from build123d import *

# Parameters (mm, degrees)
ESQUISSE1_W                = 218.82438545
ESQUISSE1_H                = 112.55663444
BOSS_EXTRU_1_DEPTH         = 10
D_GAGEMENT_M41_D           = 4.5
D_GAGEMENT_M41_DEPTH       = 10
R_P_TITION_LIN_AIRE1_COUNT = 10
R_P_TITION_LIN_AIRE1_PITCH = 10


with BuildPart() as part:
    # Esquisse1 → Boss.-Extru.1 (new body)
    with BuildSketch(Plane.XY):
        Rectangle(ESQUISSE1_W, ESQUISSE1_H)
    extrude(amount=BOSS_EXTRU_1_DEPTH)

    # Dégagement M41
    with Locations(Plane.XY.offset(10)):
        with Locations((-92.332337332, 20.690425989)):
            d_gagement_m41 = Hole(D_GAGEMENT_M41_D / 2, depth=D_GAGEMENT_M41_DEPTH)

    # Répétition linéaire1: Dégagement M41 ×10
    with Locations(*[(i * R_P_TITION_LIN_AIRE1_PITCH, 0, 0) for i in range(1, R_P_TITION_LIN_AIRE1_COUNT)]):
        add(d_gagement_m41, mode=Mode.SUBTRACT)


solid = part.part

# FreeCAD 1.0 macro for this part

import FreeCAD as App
import Part
import Sketcher
from FreeCAD import Vector


def add_polygon(sketch, points):
    """Adds a closed chain of lines whose ends are joined by coincident constraints."""
    first, n = sketch.GeometryCount, len(points)
    for a, b in zip(points, points[1:] + points[:1]):
        sketch.addGeometry(Part.LineSegment(App.Vector(*a, 0), App.Vector(*b, 0)), False)
    for i in range(n):
        sketch.addConstraint(Sketcher.Constraint("Coincident", first + i, 2, first + (i + 1) % n, 1))

doc = App.newDocument("Part")
body = doc.addObject("PartDesign::Body", "Body")

sketch1 = doc.addObject("Sketcher::SketchObject", "Sketch")
body.addObject(sketch1)
sketch1.AttachmentSupport = (doc.XY_Plane, [""])
sketch1.MapMode = "FlatFace"
add_polygon(sketch1, [(-109, 56), (-109, -56), (109, -56), (109, 56)])
sketch1.addConstraint([
    Sketcher.Constraint("Vertical", 0),
    Sketcher.Constraint("Horizontal", 1),
    Sketcher.Constraint("Vertical", 2),
    Sketcher.Constraint("Horizontal", 3),
    Sketcher.Constraint("Symmetric", 0, 2, 2, 2, -1, 1),
    Sketcher.Constraint("DistanceX", 1, 1, 1, 2, 218.824385),
    Sketcher.Constraint("DistanceY", 0, 2, 0, 1, 112.556634),
])
pad1 = doc.addObject("PartDesign::Pad", "Pad")
body.addObject(pad1)
pad1.Profile = sketch1
pad1.Length = 10

sketch2 = doc.addObject("Sketcher::SketchObject", "Sketch001")
body.addObject(sketch2)
sketch2.AttachmentSupport = (doc.XY_Plane, [""])
sketch2.MapMode = "FlatFace"
sketch2.AttachmentOffset = App.Placement(Vector(0, 0, 10), App.Rotation())
sketch2.addGeometry(Part.Circle(Vector(-92.3, 20.7, 0), Vector(0, 0, 1), 2.2), False)
sketch2.addConstraint([
    Sketcher.Constraint("Diameter", 0, 4.5),
    Sketcher.Constraint("DistanceX", 0, 3, -1, 1, 92.332337),
    Sketcher.Constraint("DistanceY", -1, 1, 0, 3, 20.690426),
])
doc.recompute()
hole = doc.addObject("PartDesign::Hole", "Hole")
body.addObject(hole)
hole.Profile = sketch2
hole.ThreadType = "None"
hole.Diameter = 4.5
hole.DepthType = "Dimension"
hole.Depth = 10
hole.DrillPoint = "Flat"
doc.recompute()

linearpattern = doc.addObject("PartDesign::LinearPattern", "LinearPattern")
body.addObject(linearpattern)
linearpattern.Originals = [hole]
linearpattern.Direction = (doc.X_Axis, [""])
linearpattern.Mode = "offset"
linearpattern.Offset = 10
linearpattern.Occurrences = 10
body.Tip = linearpattern

doc.recompute()
